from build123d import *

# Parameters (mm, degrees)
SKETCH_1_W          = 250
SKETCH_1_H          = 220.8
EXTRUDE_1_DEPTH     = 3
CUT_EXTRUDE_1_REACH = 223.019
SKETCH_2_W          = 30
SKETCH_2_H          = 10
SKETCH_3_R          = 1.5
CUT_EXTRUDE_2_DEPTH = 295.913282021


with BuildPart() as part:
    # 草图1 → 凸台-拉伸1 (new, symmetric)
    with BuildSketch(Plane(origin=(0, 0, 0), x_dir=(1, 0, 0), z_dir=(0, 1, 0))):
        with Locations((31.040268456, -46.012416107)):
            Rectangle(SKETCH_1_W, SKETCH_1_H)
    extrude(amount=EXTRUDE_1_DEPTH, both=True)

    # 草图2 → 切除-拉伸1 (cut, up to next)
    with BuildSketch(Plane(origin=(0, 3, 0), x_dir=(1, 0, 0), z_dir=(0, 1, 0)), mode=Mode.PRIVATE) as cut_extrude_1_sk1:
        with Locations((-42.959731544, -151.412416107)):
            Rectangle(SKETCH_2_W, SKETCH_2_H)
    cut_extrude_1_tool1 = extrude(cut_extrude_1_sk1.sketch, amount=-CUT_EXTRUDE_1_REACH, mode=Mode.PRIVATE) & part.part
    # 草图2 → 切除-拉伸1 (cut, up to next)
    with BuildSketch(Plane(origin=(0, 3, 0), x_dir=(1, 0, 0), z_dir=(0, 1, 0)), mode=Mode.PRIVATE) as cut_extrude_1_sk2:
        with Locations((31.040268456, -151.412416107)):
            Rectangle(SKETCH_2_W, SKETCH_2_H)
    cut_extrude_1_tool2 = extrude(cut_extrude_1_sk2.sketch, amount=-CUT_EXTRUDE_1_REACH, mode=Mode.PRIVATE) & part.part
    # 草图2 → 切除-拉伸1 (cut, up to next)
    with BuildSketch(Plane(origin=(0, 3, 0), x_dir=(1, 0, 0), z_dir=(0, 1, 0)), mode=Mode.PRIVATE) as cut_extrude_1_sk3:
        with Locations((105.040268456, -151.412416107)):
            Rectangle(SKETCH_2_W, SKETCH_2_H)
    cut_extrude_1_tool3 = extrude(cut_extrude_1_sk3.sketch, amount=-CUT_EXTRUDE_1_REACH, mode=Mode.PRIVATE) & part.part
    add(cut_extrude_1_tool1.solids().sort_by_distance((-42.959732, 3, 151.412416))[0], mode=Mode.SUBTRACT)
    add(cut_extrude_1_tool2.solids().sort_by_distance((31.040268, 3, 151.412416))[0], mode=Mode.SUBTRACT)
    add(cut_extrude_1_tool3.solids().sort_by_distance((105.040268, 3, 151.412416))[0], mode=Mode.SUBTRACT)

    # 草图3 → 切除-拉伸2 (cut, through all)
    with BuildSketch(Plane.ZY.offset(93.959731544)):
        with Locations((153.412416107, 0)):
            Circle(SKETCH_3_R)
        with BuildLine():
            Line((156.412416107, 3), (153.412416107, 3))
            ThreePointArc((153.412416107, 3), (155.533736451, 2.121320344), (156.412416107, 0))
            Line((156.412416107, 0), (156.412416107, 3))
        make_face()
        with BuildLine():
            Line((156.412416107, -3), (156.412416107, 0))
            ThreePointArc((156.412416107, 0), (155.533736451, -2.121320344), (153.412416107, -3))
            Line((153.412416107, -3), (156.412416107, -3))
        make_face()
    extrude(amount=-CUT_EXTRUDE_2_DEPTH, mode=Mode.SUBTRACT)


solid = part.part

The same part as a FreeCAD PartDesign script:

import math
import FreeCAD as App
import Part
import Sketcher


def add_polygon(sketch, points):
    """Adds a closed chain of lines whose ends are joined by coincident constraints."""
    first, n = sketch.GeometryCount, len(points)
    for a, b in zip(points, points[1:] + points[:1]):
        sketch.addGeometry(Part.LineSegment(App.Vector(*a, 0), App.Vector(*b, 0)), False)
    for i in range(n):
        sketch.addConstraint(Sketcher.Constraint("Coincident", first + i, 2, first + (i + 1) % n, 1))

doc = App.newDocument("Part")
body = doc.addObject("PartDesign::Body", "Body")

# Sketch on XZ plane
sketch1 = body.newObject("Sketcher::SketchObject", "Sketch")
sketch1.AttachmentSupport = (doc.getObject("XZ_Plane"), [""])
sketch1.MapMode = "FlatFace"
add_polygon(sketch1, [(-94, -64), (-94, 156), (156, 156), (156, -64)])  # lines 0-3
sketch1.addConstraint(Sketcher.Constraint("Vertical", 0))
sketch1.addConstraint(Sketcher.Constraint("Horizontal", 1))
sketch1.addConstraint(Sketcher.Constraint("Vertical", 2))
sketch1.addConstraint(Sketcher.Constraint("Horizontal", 3))
sketch1.addConstraint(Sketcher.Constraint("DistanceX", 1, 1, 1, 2, 250.0))
sketch1.addConstraint(Sketcher.Constraint("DistanceY", 0, 1, 0, 2, 220.8))
sketch1.addConstraint(Sketcher.Constraint("DistanceX", 0, 2, -1, 1, 93.959732))
sketch1.addConstraint(Sketcher.Constraint("DistanceY", -1, 1, 0, 2, 156.412416))
pad1 = body.newObject("PartDesign::Pad", "Pad")
pad1.Profile = sketch1
pad1.Length = 6
pad1.Midplane = True

# Sketch on XZ plane
sketch2 = body.newObject("Sketcher::SketchObject", "Sketch001")
sketch2.AttachmentSupport = (doc.getObject("XZ_Plane"), [""])
sketch2.MapMode = "FlatFace"
sketch2.AttachmentOffset = App.Placement(App.Vector(0, 0, -3), App.Rotation())
add_polygon(sketch2, [(-58, 146), (-58, 156), (-28, 156), (-28, 146)])  # lines 0-3
sketch2.addConstraint(Sketcher.Constraint("Vertical", 0))
sketch2.addConstraint(Sketcher.Constraint("Horizontal", 1))
sketch2.addConstraint(Sketcher.Constraint("Vertical", 2))
sketch2.addConstraint(Sketcher.Constraint("Horizontal", 3))
sketch2.addConstraint(Sketcher.Constraint("DistanceX", 1, 1, 1, 2, 30.0))
sketch2.addConstraint(Sketcher.Constraint("DistanceY", 0, 1, 0, 2, 10.0))
sketch2.addConstraint(Sketcher.Constraint("DistanceX", 0, 2, -1, 1, 57.959732))
sketch2.addConstraint(Sketcher.Constraint("DistanceY", -1, 1, 0, 2, 156.412416))
pocket1 = body.newObject("PartDesign::Pocket", "Pocket")
pocket1.Profile = sketch2
pocket1.Type = "UpToFirst"
pocket1.Reversed = True

# Sketch on XZ plane
sketch3 = body.newObject("Sketcher::SketchObject", "Sketch002")
sketch3.AttachmentSupport = (doc.getObject("XZ_Plane"), [""])
sketch3.MapMode = "FlatFace"
sketch3.AttachmentOffset = App.Placement(App.Vector(0, 0, -3), App.Rotation())
add_polygon(sketch3, [(16, 146), (16, 156), (46, 156), (46, 146)])  # lines 0-3
sketch3.addConstraint(Sketcher.Constraint("Vertical", 0))
sketch3.addConstraint(Sketcher.Constraint("Horizontal", 1))
sketch3.addConstraint(Sketcher.Constraint("Vertical", 2))
sketch3.addConstraint(Sketcher.Constraint("Horizontal", 3))
sketch3.addConstraint(Sketcher.Constraint("DistanceX", 1, 1, 1, 2, 30.0))
sketch3.addConstraint(Sketcher.Constraint("DistanceY", 0, 1, 0, 2, 10.0))
sketch3.addConstraint(Sketcher.Constraint("DistanceX", -1, 1, 0, 2, 16.040268))
sketch3.addConstraint(Sketcher.Constraint("DistanceY", -1, 1, 0, 2, 156.412416))
pocket2 = body.newObject("PartDesign::Pocket", "Pocket001")
pocket2.Profile = sketch3
pocket2.Type = "UpToFirst"
pocket2.Reversed = True

# Sketch on XZ plane
sketch4 = body.newObject("Sketcher::SketchObject", "Sketch003")
sketch4.AttachmentSupport = (doc.getObject("XZ_Plane"), [""])
sketch4.MapMode = "FlatFace"
sketch4.AttachmentOffset = App.Placement(App.Vector(0, 0, -3), App.Rotation())
add_polygon(sketch4, [(90, 146), (90, 156), (120, 156), (120, 146)])  # lines 0-3
sketch4.addConstraint(Sketcher.Constraint("Vertical", 0))
sketch4.addConstraint(Sketcher.Constraint("Horizontal", 1))
sketch4.addConstraint(Sketcher.Constraint("Vertical", 2))
sketch4.addConstraint(Sketcher.Constraint("Horizontal", 3))
sketch4.addConstraint(Sketcher.Constraint("DistanceX", 1, 1, 1, 2, 30.0))
sketch4.addConstraint(Sketcher.Constraint("DistanceY", 0, 1, 0, 2, 10.0))
sketch4.addConstraint(Sketcher.Constraint("DistanceX", -1, 1, 0, 2, 90.040268))
sketch4.addConstraint(Sketcher.Constraint("DistanceY", -1, 1, 0, 2, 156.412416))
pocket3 = body.newObject("PartDesign::Pocket", "Pocket002")
pocket3.Profile = sketch4
pocket3.Type = "UpToFirst"
pocket3.Reversed = True

# Sketch on YZ plane
sketch5 = body.newObject("Sketcher::SketchObject", "Sketch004")
sketch5.AttachmentSupport = (doc.getObject("YZ_Plane"), [""])
sketch5.MapMode = "FlatFace"
sketch5.AttachmentOffset = App.Placement(App.Vector(0, 0, -93.959732), App.Rotation())
sketch5.addGeometry(Part.Circle(App.Vector(0, 153.4, 0), App.Vector(0, 0, 1), 1.5), False)
sketch5.addGeometry(Part.LineSegment(App.Vector(3, 156.4, 0), App.Vector(3, 153.4, 0)), False)
sketch5.addGeometry(Part.ArcOfCircle(Part.Circle(App.Vector(0, 153.4, 0), App.Vector(0, 0, 1), 3), math.radians(0), math.radians(90)), False)
sketch5.addGeometry(Part.LineSegment(App.Vector(0, 156.4, 0), App.Vector(3, 156.4, 0)), False)
sketch5.addGeometry(Part.LineSegment(App.Vector(-3, 156.4, 0), App.Vector(0, 156.4, 0)), False)
sketch5.addGeometry(Part.ArcOfCircle(Part.Circle(App.Vector(0, 153.4, 0), App.Vector(0, 0, 1), 3), math.radians(90), math.radians(180)), False)
sketch5.addGeometry(Part.LineSegment(App.Vector(-3, 153.4, 0), App.Vector(-3, 156.4, 0)), False)
sketch5.addConstraint(Sketcher.Constraint("Tangent", 1, 2, 2, 1))
sketch5.addConstraint(Sketcher.Constraint("Tangent", 2, 2, 3, 1))
sketch5.addConstraint(Sketcher.Constraint("Coincident", 3, 2, 1, 1))
sketch5.addConstraint(Sketcher.Constraint("Tangent", 4, 2, 5, 1))
sketch5.addConstraint(Sketcher.Constraint("Tangent", 5, 2, 6, 1))
sketch5.addConstraint(Sketcher.Constraint("Coincident", 6, 2, 4, 1))
sketch5.addConstraint(Sketcher.Constraint("Vertical", 1))
sketch5.addConstraint(Sketcher.Constraint("Horizontal", 3))
sketch5.addConstraint(Sketcher.Constraint("Horizontal", 4))
sketch5.addConstraint(Sketcher.Constraint("Vertical", 6))
sketch5.addConstraint(Sketcher.Constraint("Coincident", 2, 3, 0, 3))
sketch5.addConstraint(Sketcher.Constraint("Coincident", 5, 3, 0, 3))
sketch5.addConstraint(Sketcher.Constraint("Equal", 2, 5))
sketch5.addConstraint(Sketcher.Constraint("PointOnObject", 0, 3, -2))
sketch5.addConstraint(Sketcher.Constraint("Diameter", 0, 3.0))
sketch5.addConstraint(Sketcher.Constraint("Radius", 2, 3.0))
sketch5.addConstraint(Sketcher.Constraint("DistanceY", -1, 1, 0, 3, 153.412416))
pocket4 = body.newObject("PartDesign::Pocket", "Pocket003")
pocket4.Profile = sketch5
pocket4.Type = "ThroughAll"
pocket4.Reversed = True

doc.recompute()
